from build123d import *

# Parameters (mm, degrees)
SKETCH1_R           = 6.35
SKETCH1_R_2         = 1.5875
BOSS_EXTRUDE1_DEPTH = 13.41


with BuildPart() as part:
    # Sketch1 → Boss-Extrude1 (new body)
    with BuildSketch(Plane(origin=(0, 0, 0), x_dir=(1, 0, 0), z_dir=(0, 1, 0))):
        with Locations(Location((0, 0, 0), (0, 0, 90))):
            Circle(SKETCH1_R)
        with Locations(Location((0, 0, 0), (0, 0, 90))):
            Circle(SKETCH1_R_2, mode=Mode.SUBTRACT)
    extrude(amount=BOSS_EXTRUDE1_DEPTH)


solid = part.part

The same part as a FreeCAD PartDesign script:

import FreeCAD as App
import Part
import Sketcher
Q = App.Units.Quantity

doc = App.newDocument("Part")
params = doc.addObject("Spreadsheet::Sheet", "Params")
for row, (alias, value) in enumerate([
    ("sketch1_diameter", "0.5 in"),
    ("sketch1_diameter2", "0.125 in"),
    ("pad1_length", "13.41 mm"),
], start=1):
    params.set(f"A{row}", alias)
    params.set(f"B{row}", "=" + value)
    params.setAlias(f"B{row}", alias)

body = doc.addObject("PartDesign::Body", "Body")

# Sketch on XZ plane
sketch1 = body.newObject("Sketcher::SketchObject", "Sketch")
sketch1.AttachmentSupport = (doc.getObject("XZ_Plane"), [""])
sketch1.MapMode = "FlatFace"
sketch1.addGeometry(Part.Circle(App.Vector(0, 0, 0), App.Vector(0, 0, 1), 6.3), False)
sketch1.addGeometry(Part.Circle(App.Vector(0, 0, 0), App.Vector(0, 0, 1), 1.6), False)
sketch1.addConstraint(Sketcher.Constraint("Coincident", 0, 3, -1, 1))
sketch1.addConstraint(Sketcher.Constraint("Coincident", 1, 3, -1, 1))
sketch1.addConstraint(Sketcher.Constraint("Diameter", 0, Q("0.5 in")))
sketch1.addConstraint(Sketcher.Constraint("Diameter", 1, Q("0.125 in")))
sketch1.setExpression("Constraints[2]", "Params.sketch1_diameter")
sketch1.setExpression("Constraints[3]", "Params.sketch1_diameter2")
pad1 = body.newObject("PartDesign::Pad", "Pad")
pad1.Profile = sketch1
pad1.setExpression("Length", "Params.pad1_length")
pad1.Reversed = True

doc.recompute()
